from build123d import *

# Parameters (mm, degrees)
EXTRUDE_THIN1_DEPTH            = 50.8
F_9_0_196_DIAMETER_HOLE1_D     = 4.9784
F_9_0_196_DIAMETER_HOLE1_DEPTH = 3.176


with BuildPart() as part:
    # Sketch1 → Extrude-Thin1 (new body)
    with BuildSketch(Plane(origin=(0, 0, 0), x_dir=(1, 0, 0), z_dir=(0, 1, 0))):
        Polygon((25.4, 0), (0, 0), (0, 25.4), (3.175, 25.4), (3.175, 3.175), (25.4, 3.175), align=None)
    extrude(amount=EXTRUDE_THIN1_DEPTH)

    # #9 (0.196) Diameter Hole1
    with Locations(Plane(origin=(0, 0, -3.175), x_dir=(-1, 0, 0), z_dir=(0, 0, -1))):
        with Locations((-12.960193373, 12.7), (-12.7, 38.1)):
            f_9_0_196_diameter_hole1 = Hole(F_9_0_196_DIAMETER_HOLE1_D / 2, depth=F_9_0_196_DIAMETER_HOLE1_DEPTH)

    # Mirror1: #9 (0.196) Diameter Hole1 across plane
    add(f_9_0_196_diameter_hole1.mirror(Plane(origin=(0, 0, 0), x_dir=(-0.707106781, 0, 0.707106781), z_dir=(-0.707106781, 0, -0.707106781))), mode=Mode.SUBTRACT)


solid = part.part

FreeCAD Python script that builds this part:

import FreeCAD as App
import Part
import Sketcher
from FreeCAD import Vector
Q = App.Units.Quantity


def add_polygon(sketch, points):
    """Adds a closed chain of lines whose ends are joined by coincident constraints."""
    first, n = sketch.GeometryCount, len(points)
    for a, b in zip(points, points[1:] + points[:1]):
        sketch.addGeometry(Part.LineSegment(App.Vector(*a, 0), App.Vector(*b, 0)), False)
    for i in range(n):
        sketch.addConstraint(Sketcher.Constraint("Coincident", first + i, 2, first + (i + 1) % n, 1))

doc = App.newDocument("Part")
body = doc.addObject("PartDesign::Body", "Body")

sketch1 = body.newObject("Sketcher::SketchObject", "Sketch")
sketch1.AttachmentSupport = (doc.getObject("XZ_Plane"), [""])
sketch1.MapMode = "FlatFace"
add_polygon(sketch1, [(0, 0), (25.4, 0), (25.4, -3.2), (3.2, -3.2), (3.2, -25.4), (0, -25.4)])
sketch1.addConstraint(Sketcher.Constraint("Horizontal", 0))
sketch1.addConstraint(Sketcher.Constraint("Vertical", 1))
sketch1.addConstraint(Sketcher.Constraint("Horizontal", 2))
sketch1.addConstraint(Sketcher.Constraint("Vertical", 3))
sketch1.addConstraint(Sketcher.Constraint("Horizontal", 4))
sketch1.addConstraint(Sketcher.Constraint("Vertical", 5))
sketch1.addConstraint(Sketcher.Constraint("Coincident", 5, 2, -1, 1))
sketch1.addConstraint(Sketcher.Constraint("Equal", 4, 1))
sketch1.addConstraint(Sketcher.Constraint("Equal", 2, 3))
sketch1.addConstraint(Sketcher.Constraint("DistanceX", 0, 1, 0, 2, Q("1 in")))
sketch1.addConstraint(Sketcher.Constraint("DistanceX", 2, 2, 2, 1, Q("0.875 in")))
pad1 = body.newObject("PartDesign::Pad", "Pad")
pad1.Profile = sketch1
pad1.Length = Q("2 in")
pad1.Reversed = True

sketch2 = body.newObject("Sketcher::SketchObject", "Sketch001")
sketch2.AttachmentSupport = (doc.getObject("XY_Plane"), [""])
sketch2.MapMode = "FlatFace"
sketch2.AttachmentOffset = App.Placement(Vector(0, 0, -0.125 * 25.4), App.Rotation())
sketch2.addGeometry(Part.Circle(Vector(13, 12.7, 0), Vector(0, 0, 1), 2.5), False)
sketch2.addGeometry(Part.Circle(Vector(12.7, 38.1, 0), Vector(0, 0, 1), 2.5), False)
sketch2.addConstraint(Sketcher.Constraint("Equal", 0, 1))
sketch2.addConstraint(Sketcher.Constraint("Diameter", 0, Q("0.196 in")))
sketch2.addConstraint(Sketcher.Constraint("DistanceY", 0, 3, 1, 3, Q("1 in")))
sketch2.addConstraint(Sketcher.Constraint("DistanceY", -1, 1, 0, 3, Q("0.5 in")))
sketch2.addConstraint(Sketcher.Constraint("DistanceX", -1, 1, 1, 3, Q("0.5 in")))
sketch2.addConstraint(Sketcher.Constraint("DistanceX", -1, 1, 0, 3, Q("12.960193 mm")))
doc.recompute()
hole = body.newObject("PartDesign::Hole", "Hole")
hole.Profile = sketch2
hole.ThreadType = "None"
hole.Diameter = Q("0.196 in")
hole.DepthType = "Dimension"
hole.Depth = 3.176
hole.DrillPoint = "Flat"
hole.Reversed = True
doc.recompute()

datumplane = body.newObject("PartDesign::Plane", "DatumPlane")
datumplane.Placement = App.Placement(Vector(0, 0, 0), App.Rotation(Vector(0.707106781, 0, -0.707106781), Vector(0, -1, 0), Vector(-0.707106781, 0, -0.707106781), "ZXY"))
mirrored = body.newObject("PartDesign::Mirrored", "Mirrored")
mirrored.Originals = [hole]
mirrored.MirrorPlane = (datumplane, [""])
body.Tip = mirrored

doc.recompute()
